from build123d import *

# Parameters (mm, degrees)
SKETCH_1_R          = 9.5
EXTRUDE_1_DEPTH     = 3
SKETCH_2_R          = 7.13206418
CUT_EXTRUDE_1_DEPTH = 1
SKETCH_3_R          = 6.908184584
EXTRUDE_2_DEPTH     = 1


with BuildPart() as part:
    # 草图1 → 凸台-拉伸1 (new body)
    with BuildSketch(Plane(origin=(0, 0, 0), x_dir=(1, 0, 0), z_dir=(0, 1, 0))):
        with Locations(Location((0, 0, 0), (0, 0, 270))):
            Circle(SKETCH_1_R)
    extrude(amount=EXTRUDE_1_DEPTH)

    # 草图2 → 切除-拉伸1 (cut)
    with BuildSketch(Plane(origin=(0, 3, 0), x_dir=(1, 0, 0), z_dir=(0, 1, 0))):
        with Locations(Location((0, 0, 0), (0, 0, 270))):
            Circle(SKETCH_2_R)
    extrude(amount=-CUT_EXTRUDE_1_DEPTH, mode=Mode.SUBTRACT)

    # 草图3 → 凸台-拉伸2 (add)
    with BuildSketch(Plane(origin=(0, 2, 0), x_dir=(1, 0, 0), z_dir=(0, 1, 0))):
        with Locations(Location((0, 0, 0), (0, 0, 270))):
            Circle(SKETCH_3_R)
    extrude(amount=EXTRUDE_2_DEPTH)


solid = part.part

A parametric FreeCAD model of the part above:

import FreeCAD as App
import Part
import Sketcher

V = App.Vector

doc = App.newDocument("Part")
body = doc.addObject("PartDesign::Body", "Body")

# Sketch on XZ plane
sketch1 = body.newObject("Sketcher::SketchObject", "Sketch")
sketch1.AttachmentSupport = (doc.getObject("XZ_Plane"), [""])
sketch1.MapMode = "FlatFace"
sketch1.addGeometry(Part.Circle(V(0, 0, 0), V(0, 0, 1), 10), False)
sketch1.addConstraint([
    Sketcher.Constraint("Coincident", 0, 3, -1, 1),
    Sketcher.Constraint("Diameter", 0, 19.0),
])
pad1 = body.newObject("PartDesign::Pad", "Pad")
pad1.Profile = sketch1
pad1.Length = 3
pad1.Reversed = True

# Sketch on XZ plane
sketch2 = body.newObject("Sketcher::SketchObject", "Sketch001")
sketch2.AttachmentSupport = (doc.getObject("XZ_Plane"), [""])
sketch2.MapMode = "FlatFace"
sketch2.AttachmentOffset = App.Placement(V(0, 0, -3), App.Rotation())
sketch2.addGeometry(Part.Circle(V(0, 0, 0), V(0, 0, 1), 7), False)
sketch2.addConstraint([
    Sketcher.Constraint("Coincident", 0, 3, -1, 1),
    Sketcher.Constraint("Diameter", 0, 14.264128),
])
pocket1 = body.newObject("PartDesign::Pocket", "Pocket")
pocket1.Profile = sketch2
pocket1.Length = 1
pocket1.Reversed = True

# Sketch on XZ plane
sketch3 = body.newObject("Sketcher::SketchObject", "Sketch002")
sketch3.AttachmentSupport = (doc.getObject("XZ_Plane"), [""])
sketch3.MapMode = "FlatFace"
sketch3.AttachmentOffset = App.Placement(V(0, 0, -2), App.Rotation())
sketch3.addGeometry(Part.Circle(V(0, 0, 0), V(0, 0, 1), 7), False)
sketch3.addConstraint([
    Sketcher.Constraint("Coincident", 0, 3, -1, 1),
    Sketcher.Constraint("Diameter", 0, 13.816369),
])
pad2 = body.newObject("PartDesign::Pad", "Pad001")
pad2.Profile = sketch3
pad2.Length = 1
pad2.Reversed = True

doc.recompute()
